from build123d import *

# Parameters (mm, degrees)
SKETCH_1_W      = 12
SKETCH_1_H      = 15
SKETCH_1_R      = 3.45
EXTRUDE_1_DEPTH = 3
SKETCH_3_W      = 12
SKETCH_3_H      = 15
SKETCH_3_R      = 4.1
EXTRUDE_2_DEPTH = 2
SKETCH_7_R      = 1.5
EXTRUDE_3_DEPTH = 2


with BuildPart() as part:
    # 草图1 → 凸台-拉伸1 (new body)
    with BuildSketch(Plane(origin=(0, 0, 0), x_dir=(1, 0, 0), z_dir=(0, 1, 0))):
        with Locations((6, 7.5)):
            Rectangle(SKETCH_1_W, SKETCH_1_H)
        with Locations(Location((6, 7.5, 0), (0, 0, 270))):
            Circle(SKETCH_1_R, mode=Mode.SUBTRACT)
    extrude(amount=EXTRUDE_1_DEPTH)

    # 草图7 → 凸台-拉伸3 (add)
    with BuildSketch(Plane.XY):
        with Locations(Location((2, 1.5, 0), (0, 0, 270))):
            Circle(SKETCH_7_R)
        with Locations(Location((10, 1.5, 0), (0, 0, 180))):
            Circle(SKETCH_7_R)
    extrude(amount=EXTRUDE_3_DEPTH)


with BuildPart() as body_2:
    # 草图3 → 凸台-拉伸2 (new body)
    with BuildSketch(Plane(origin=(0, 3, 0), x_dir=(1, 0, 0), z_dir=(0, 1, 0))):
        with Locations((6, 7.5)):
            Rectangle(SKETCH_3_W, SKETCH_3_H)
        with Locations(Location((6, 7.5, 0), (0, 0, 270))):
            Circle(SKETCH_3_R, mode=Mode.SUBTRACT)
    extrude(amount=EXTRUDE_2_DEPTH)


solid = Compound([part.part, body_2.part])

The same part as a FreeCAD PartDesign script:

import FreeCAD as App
import Part
import Sketcher
from FreeCAD import Vector
Q = App.Units.Quantity

doc = App.newDocument("Part")
params = doc.addObject("Spreadsheet::Sheet", "Params")
for row, (alias, value) in enumerate([
    ("sketch1_diameter", "6.9 mm"),
    ("sketch1_width", "12 mm"),
    ("sketch1_height", "15 mm"),
    ("pad1_length", "3 mm"),
    ("sketch2_diameter", "3 mm"),
    ("pad2_length", "2 mm"),
    ("sketch3_diameter", "8.2 mm"),
    ("sketch3_width", "12 mm"),
    ("sketch3_height", "15 mm"),
    ("pad3_length", "2 mm"),
], start=1):
    params.set(f"A{row}", alias)
    params.set(f"B{row}", "=" + value)
    params.setAlias(f"B{row}", alias)

body = doc.addObject("PartDesign::Body", "Body")

sketch1 = doc.addObject("Sketcher::SketchObject", "Sketch")
body.addObject(sketch1)
sketch1.AttachmentSupport = (doc.XZ_Plane, [""])
sketch1.MapMode = "FlatFace"
sketch1.addGeometry([
    Part.LineSegment(Vector(0, -15, 0), Vector(0, 0, 0)),
    Part.LineSegment(Vector(0, 0, 0), Vector(12, 0, 0)),
    Part.LineSegment(Vector(12, 0, 0), Vector(12, -15, 0)),
    Part.LineSegment(Vector(12, -15, 0), Vector(0, -15, 0)),
    Part.Circle(Vector(6, -7.5, 0), Vector(0, 0, 1), 3.5),
], False)
sketch1.addConstraint([
    Sketcher.Constraint("Coincident", 0, 2, 1, 1),
    Sketcher.Constraint("Coincident", 1, 2, 2, 1),
    Sketcher.Constraint("Coincident", 2, 2, 3, 1),
    Sketcher.Constraint("Coincident", 3, 2, 0, 1),
    Sketcher.Constraint("Vertical", 0),
    Sketcher.Constraint("Horizontal", 1),
    Sketcher.Constraint("Vertical", 2),
    Sketcher.Constraint("Horizontal", 3),
    Sketcher.Constraint("Coincident", 0, 2, -1, 1),
    Sketcher.Constraint("Diameter", 4, Q("6.9 mm")),
    Sketcher.Constraint("DistanceX", 1, 1, 1, 2, Q("12 mm")),
    Sketcher.Constraint("DistanceY", 0, 1, 0, 2, Q("15 mm")),
    Sketcher.Constraint("DistanceX", -1, 1, 4, 3, Q("6 mm")),
    Sketcher.Constraint("DistanceY", 4, 3, -1, 1, Q("7.5 mm")),
])
sketch1.setExpression("Constraints[9]", "Params.sketch1_diameter")
sketch1.setExpression("Constraints[10]", "Params.sketch1_width")
sketch1.setExpression("Constraints[11]", "Params.sketch1_height")
pad1 = doc.addObject("PartDesign::Pad", "Pad")
body.addObject(pad1)
pad1.Profile = sketch1
pad1.setExpression("Length", "Params.pad1_length")
pad1.Reversed = True

sketch2 = doc.addObject("Sketcher::SketchObject", "Sketch001")
body.addObject(sketch2)
sketch2.AttachmentSupport = (doc.XY_Plane, [""])
sketch2.MapMode = "FlatFace"
sketch2.addGeometry([
    Part.Circle(Vector(2, 1.5, 0), Vector(0, 0, 1), 1.5),
    Part.Circle(Vector(10, 1.5, 0), Vector(0, 0, 1), 1.5),
], False)
sketch2.addConstraint([
    Sketcher.Constraint("Equal", 0, 1),
    Sketcher.Constraint("Horizontal", 0, 3, 1, 3),
    Sketcher.Constraint("Diameter", 0, Q("3 mm")),
    Sketcher.Constraint("DistanceX", -1, 1, 0, 3, Q("2 mm")),
    Sketcher.Constraint("DistanceX", -1, 1, 1, 3, Q("10 mm")),
    Sketcher.Constraint("DistanceY", -1, 1, 0, 3, Q("1.5 mm")),
])
sketch2.setExpression("Constraints[2]", "Params.sketch2_diameter")
pad2 = doc.addObject("PartDesign::Pad", "Pad001")
body.addObject(pad2)
pad2.Profile = sketch2
pad2.setExpression("Length", "Params.pad2_length")
body2 = doc.addObject("PartDesign::Body", "Body001")

sketch3 = doc.addObject("Sketcher::SketchObject", "Sketch002")
body2.addObject(sketch3)
sketch3.AttachmentSupport = (doc.getObject("XZ_Plane001"), [""])
sketch3.MapMode = "FlatFace"
sketch3.AttachmentOffset = App.Placement(Vector(0, 0, -3), App.Rotation())
sketch3.addGeometry([
    Part.LineSegment(Vector(0, -15, 0), Vector(0, 0, 0)),
    Part.LineSegment(Vector(0, 0, 0), Vector(12, 0, 0)),
    Part.LineSegment(Vector(12, 0, 0), Vector(12, -15, 0)),
    Part.LineSegment(Vector(12, -15, 0), Vector(0, -15, 0)),
    Part.Circle(Vector(6, -7.5, 0), Vector(0, 0, 1), 4.1),
], False)
sketch3.addConstraint([
    Sketcher.Constraint("Coincident", 0, 2, 1, 1),
    Sketcher.Constraint("Coincident", 1, 2, 2, 1),
    Sketcher.Constraint("Coincident", 2, 2, 3, 1),
    Sketcher.Constraint("Coincident", 3, 2, 0, 1),
    Sketcher.Constraint("Vertical", 0),
    Sketcher.Constraint("Horizontal", 1),
    Sketcher.Constraint("Vertical", 2),
    Sketcher.Constraint("Horizontal", 3),
    Sketcher.Constraint("Coincident", 0, 2, -1, 1),
    Sketcher.Constraint("Diameter", 4, Q("8.2 mm")),
    Sketcher.Constraint("DistanceX", 1, 1, 1, 2, Q("12 mm")),
    Sketcher.Constraint("DistanceY", 0, 1, 0, 2, Q("15 mm")),
    Sketcher.Constraint("DistanceX", -1, 1, 4, 3, Q("6 mm")),
    Sketcher.Constraint("DistanceY", 4, 3, -1, 1, Q("7.5 mm")),
])
sketch3.setExpression("Constraints[9]", "Params.sketch3_diameter")
sketch3.setExpression("Constraints[10]", "Params.sketch3_width")
sketch3.setExpression("Constraints[11]", "Params.sketch3_height")
pad3 = doc.addObject("PartDesign::Pad", "Pad002")
body2.addObject(pad3)
pad3.Profile = sketch3
pad3.setExpression("Length", "Params.pad3_length")
pad3.Reversed = True

doc.recompute()
